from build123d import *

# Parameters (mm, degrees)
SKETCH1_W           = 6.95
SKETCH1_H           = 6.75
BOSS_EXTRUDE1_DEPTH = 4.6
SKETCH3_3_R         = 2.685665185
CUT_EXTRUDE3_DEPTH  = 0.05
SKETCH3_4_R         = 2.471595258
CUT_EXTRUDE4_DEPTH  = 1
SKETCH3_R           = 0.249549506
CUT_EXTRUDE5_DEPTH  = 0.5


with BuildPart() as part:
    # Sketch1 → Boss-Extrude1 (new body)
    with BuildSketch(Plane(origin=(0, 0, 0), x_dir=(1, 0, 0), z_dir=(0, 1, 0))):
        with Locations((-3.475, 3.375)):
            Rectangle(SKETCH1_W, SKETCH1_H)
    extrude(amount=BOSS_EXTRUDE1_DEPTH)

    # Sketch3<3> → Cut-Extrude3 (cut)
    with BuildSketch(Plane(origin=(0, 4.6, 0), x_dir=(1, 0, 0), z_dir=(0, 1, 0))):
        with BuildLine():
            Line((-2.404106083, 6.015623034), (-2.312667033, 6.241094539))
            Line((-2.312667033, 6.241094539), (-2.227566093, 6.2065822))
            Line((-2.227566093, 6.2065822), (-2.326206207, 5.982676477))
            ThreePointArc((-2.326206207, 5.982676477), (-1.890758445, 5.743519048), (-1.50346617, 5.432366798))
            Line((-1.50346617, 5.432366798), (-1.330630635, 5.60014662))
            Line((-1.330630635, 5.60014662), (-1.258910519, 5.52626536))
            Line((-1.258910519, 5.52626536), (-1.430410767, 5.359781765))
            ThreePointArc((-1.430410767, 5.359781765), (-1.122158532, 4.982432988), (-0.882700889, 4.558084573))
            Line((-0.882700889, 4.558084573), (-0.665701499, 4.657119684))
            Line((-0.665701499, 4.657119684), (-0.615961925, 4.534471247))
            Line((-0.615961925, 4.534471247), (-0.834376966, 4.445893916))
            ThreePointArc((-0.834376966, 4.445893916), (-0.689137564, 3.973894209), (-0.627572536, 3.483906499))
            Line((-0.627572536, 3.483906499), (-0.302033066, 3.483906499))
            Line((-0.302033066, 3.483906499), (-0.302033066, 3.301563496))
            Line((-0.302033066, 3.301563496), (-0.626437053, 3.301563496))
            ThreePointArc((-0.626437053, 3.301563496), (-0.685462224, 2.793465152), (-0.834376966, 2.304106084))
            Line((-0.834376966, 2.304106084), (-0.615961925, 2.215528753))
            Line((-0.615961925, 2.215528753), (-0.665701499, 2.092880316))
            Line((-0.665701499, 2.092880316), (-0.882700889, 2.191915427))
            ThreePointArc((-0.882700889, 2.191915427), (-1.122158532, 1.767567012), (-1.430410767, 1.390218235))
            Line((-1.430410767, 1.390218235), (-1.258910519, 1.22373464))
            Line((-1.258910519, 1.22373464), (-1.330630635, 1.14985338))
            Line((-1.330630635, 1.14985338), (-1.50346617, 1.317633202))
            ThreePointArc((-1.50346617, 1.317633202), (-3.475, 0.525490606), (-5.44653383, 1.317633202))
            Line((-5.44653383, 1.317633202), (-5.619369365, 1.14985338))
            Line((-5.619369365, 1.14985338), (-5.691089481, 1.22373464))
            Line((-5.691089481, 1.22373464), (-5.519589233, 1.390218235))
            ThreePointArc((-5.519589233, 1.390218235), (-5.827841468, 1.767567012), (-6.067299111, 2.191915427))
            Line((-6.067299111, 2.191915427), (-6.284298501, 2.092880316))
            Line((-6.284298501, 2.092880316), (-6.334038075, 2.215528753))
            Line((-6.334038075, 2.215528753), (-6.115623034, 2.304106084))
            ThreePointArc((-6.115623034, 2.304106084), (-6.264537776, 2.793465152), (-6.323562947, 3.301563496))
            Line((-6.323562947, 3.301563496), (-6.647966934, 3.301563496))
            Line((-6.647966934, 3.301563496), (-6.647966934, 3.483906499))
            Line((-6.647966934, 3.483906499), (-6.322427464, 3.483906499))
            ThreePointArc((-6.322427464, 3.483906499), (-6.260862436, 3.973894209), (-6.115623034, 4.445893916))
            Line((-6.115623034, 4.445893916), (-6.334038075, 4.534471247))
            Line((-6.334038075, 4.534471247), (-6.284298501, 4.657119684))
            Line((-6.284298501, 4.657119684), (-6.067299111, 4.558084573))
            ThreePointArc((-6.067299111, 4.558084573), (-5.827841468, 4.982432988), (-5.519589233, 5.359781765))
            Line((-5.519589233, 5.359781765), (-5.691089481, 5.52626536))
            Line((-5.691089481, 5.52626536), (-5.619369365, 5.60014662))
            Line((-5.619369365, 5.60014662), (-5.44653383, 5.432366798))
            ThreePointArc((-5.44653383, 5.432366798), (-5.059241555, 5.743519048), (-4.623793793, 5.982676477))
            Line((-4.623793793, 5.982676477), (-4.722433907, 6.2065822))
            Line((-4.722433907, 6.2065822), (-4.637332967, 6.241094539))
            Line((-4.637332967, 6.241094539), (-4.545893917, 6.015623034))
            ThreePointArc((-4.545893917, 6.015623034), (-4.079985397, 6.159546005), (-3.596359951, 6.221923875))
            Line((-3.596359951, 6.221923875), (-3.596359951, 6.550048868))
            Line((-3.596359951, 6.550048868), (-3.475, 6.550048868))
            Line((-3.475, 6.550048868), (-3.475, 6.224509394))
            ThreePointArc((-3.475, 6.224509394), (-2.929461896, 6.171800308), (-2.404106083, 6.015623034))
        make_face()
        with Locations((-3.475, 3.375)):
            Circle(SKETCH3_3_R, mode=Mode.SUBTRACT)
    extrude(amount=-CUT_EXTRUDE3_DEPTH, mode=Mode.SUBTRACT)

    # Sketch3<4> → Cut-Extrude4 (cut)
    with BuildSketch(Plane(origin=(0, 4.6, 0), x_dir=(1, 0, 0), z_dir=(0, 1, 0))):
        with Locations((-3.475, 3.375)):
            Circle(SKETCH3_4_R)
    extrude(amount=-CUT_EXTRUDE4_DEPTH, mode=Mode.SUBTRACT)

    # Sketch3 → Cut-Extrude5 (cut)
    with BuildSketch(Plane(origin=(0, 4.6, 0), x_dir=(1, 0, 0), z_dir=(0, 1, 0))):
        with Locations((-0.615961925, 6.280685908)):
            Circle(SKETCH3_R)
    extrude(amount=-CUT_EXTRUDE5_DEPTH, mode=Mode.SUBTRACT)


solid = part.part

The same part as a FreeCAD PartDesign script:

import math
import FreeCAD as App
import Part
import Sketcher
Q = App.Units.Quantity


def add_polygon(sketch, points):
    """Adds a closed chain of lines whose ends are joined by coincident constraints."""
    first, n = sketch.GeometryCount, len(points)
    for a, b in zip(points, points[1:] + points[:1]):
        sketch.addGeometry(Part.LineSegment(App.Vector(*a, 0), App.Vector(*b, 0)), False)
    for i in range(n):
        sketch.addConstraint(Sketcher.Constraint("Coincident", first + i, 2, first + (i + 1) % n, 1))

doc = App.newDocument("Part")
params = doc.addObject("Spreadsheet::Sheet", "Params")
for row, (alias, value) in enumerate([
    ("sketch1_width", "6.95 mm"),
    ("sketch1_height", "6.75 mm"),
    ("pad1_length", "4.6 mm"),
    ("pocket1_length", "0.05 mm"),
    ("pocket2_length", "1 mm"),
    ("pocket3_length", "0.5 mm"),
], start=1):
    params.set(f"A{row}", alias)
    params.set(f"B{row}", "=" + value)
    params.setAlias(f"B{row}", alias)

body = doc.addObject("PartDesign::Body", "Body")

sketch1 = body.newObject("Sketcher::SketchObject", "Sketch")
sketch1.AttachmentSupport = (doc.getObject("XZ_Plane"), [""])
sketch1.MapMode = "FlatFace"
add_polygon(sketch1, [(-7, -7), (-7, 0), (0, 0), (0, -7)])
sketch1.addConstraint([
    Sketcher.Constraint("Vertical", 0),
    Sketcher.Constraint("Horizontal", 1),
    Sketcher.Constraint("Vertical", 2),
    Sketcher.Constraint("Horizontal", 3),
    Sketcher.Constraint("Coincident", 1, 2, -1, 1),
    Sketcher.Constraint("DistanceX", 1, 1, 1, 2, Q("6.95 mm")),
    Sketcher.Constraint("DistanceY", 0, 1, 0, 2, Q("6.75 mm")),
])
sketch1.setExpression("Constraints[9]", "Params.sketch1_width")
sketch1.setExpression("Constraints[10]", "Params.sketch1_height")
pad1 = body.newObject("PartDesign::Pad", "Pad")
pad1.Profile = sketch1
pad1.setExpression("Length", "Params.pad1_length")
pad1.Reversed = True

sketch2 = body.newObject("Sketcher::SketchObject", "Sketch001")
sketch2.AttachmentSupport = (doc.getObject("XZ_Plane"), [""])
sketch2.MapMode = "FlatFace"
sketch2.AttachmentOffset = App.Placement(App.Vector(0, 0, -4.6), App.Rotation())
sketch2.addGeometry([
    Part.LineSegment(App.Vector(-2.312667, -6.241095, 0), App.Vector(-2.404106, -6.015623, 0)),
    Part.ArcOfCircle(Part.Circle(App.Vector(-3.475, -3.375, 0), App.Vector(0, 0, 1), 2.849509), math.radians(-90), math.radians(-67.925186)),
    Part.LineSegment(App.Vector(-3.475, -6.224509, 0), App.Vector(-3.475, -6.550049, 0)),
    Part.LineSegment(App.Vector(-3.475, -6.550049, 0), App.Vector(-3.59636, -6.550049, 0)),
    Part.LineSegment(App.Vector(-3.59636, -6.550049, 0), App.Vector(-3.59636, -6.221924, 0)),
    Part.ArcOfCircle(Part.Circle(App.Vector(-3.475, -3.375, 0), App.Vector(0, 0, 1), 2.849509), math.radians(-112.074814), math.radians(-92.440953)),
    Part.LineSegment(App.Vector(-4.545894, -6.015623, 0), App.Vector(-4.637333, -6.241095, 0)),
    Part.LineSegment(App.Vector(-4.637333, -6.241095, 0), App.Vector(-4.722434, -6.206582, 0)),
    Part.LineSegment(App.Vector(-4.722434, -6.206582, 0), App.Vector(-4.623794, -5.982676, 0)),
    Part.ArcOfCircle(Part.Circle(App.Vector(-3.475, -3.375, 0), App.Vector(0, 0, 1), 2.849509), math.radians(-133.779537), math.radians(-113.775558)),
    Part.LineSegment(App.Vector(-5.446534, -5.432367, 0), App.Vector(-5.619369, -5.600147, 0)),
    Part.LineSegment(App.Vector(-5.619369, -5.600147, 0), App.Vector(-5.691089, -5.526265, 0)),
    Part.LineSegment(App.Vector(-5.691089, -5.526265, 0), App.Vector(-5.519589, -5.359782, 0)),
    Part.ArcOfCircle(Part.Circle(App.Vector(-3.475, -3.375, 0), App.Vector(0, 0, 1), 2.849509), math.radians(-155.468789), math.radians(-135.850372)),
    Part.LineSegment(App.Vector(-6.067299, -4.558085, 0), App.Vector(-6.284299, -4.65712, 0)),
    Part.LineSegment(App.Vector(-6.284299, -4.65712, 0), App.Vector(-6.334038, -4.534471, 0)),
    Part.LineSegment(App.Vector(-6.334038, -4.534471, 0), App.Vector(-6.115623, -4.445894, 0)),
    Part.ArcOfCircle(Part.Circle(App.Vector(-3.475, -3.375, 0), App.Vector(0, 0, 1), 2.849509), math.radians(-177.809657), math.radians(-157.925186)),
    Part.LineSegment(App.Vector(-6.322427, -3.483906, 0), App.Vector(-6.647967, -3.483906, 0)),
    Part.LineSegment(App.Vector(-6.647967, -3.483906, 0), App.Vector(-6.647967, -3.301563, 0)),
    Part.LineSegment(App.Vector(-6.647967, -3.301563, 0), App.Vector(-6.323563, -3.301563, 0)),
    Part.ArcOfCircle(Part.Circle(App.Vector(-3.475, -3.375, 0), App.Vector(0, 0, 1), 2.849509), math.radians(157.925186), math.radians(178.523231)),
    Part.LineSegment(App.Vector(-6.115623, -2.304106, 0), App.Vector(-6.334038, -2.215529, 0)),
    Part.LineSegment(App.Vector(-6.334038, -2.215529, 0), App.Vector(-6.284299, -2.09288, 0)),
    Part.LineSegment(App.Vector(-6.284299, -2.09288, 0), App.Vector(-6.067299, -2.191915, 0)),
    Part.ArcOfCircle(Part.Circle(App.Vector(-3.475, -3.375, 0), App.Vector(0, 0, 1), 2.849509), math.radians(135.850372), math.radians(155.468789)),
    Part.LineSegment(App.Vector(-5.519589, -1.390218, 0), App.Vector(-5.691089, -1.223735, 0)),
    Part.LineSegment(App.Vector(-5.691089, -1.223735, 0), App.Vector(-5.619369, -1.149853, 0)),
    Part.LineSegment(App.Vector(-5.619369, -1.149853, 0), App.Vector(-5.446534, -1.317633, 0)),
    Part.ArcOfCircle(Part.Circle(App.Vector(-3.475, -3.375, 0), App.Vector(0, 0, 1), 2.849509), math.radians(46.220463), math.radians(133.779537)),
    Part.LineSegment(App.Vector(-1.503466, -1.317633, 0), App.Vector(-1.330631, -1.149853, 0)),
    Part.LineSegment(App.Vector(-1.330631, -1.149853, 0), App.Vector(-1.258911, -1.223735, 0)),
    Part.LineSegment(App.Vector(-1.258911, -1.223735, 0), App.Vector(-1.430411, -1.390218, 0)),
    Part.ArcOfCircle(Part.Circle(App.Vector(-3.475, -3.375, 0), App.Vector(0, 0, 1), 2.849509), math.radians(24.531211), math.radians(44.149628)),
    Part.LineSegment(App.Vector(-0.882701, -2.191915, 0), App.Vector(-0.665701, -2.09288, 0)),
    Part.LineSegment(App.Vector(-0.665701, -2.09288, 0), App.Vector(-0.615962, -2.215529, 0)),
    Part.LineSegment(App.Vector(-0.615962, -2.215529, 0), App.Vector(-0.834377, -2.304106, 0)),
    Part.ArcOfCircle(Part.Circle(App.Vector(-3.475, -3.375, 0), App.Vector(0, 0, 1), 2.849509), math.radians(1.476769), math.radians(22.074814)),
    Part.LineSegment(App.Vector(-0.626437, -3.301563, 0), App.Vector(-0.302033, -3.301563, 0)),
    Part.LineSegment(App.Vector(-0.302033, -3.301563, 0), App.Vector(-0.302033, -3.483906, 0)),
    Part.LineSegment(App.Vector(-0.302033, -3.483906, 0), App.Vector(-0.627573, -3.483906, 0)),
    Part.ArcOfCircle(Part.Circle(App.Vector(-3.475, -3.375, 0), App.Vector(0, 0, 1), 2.849509), math.radians(-22.074814), math.radians(-2.190343)),
    Part.LineSegment(App.Vector(-0.834377, -4.445894, 0), App.Vector(-0.615962, -4.534471, 0)),
    Part.LineSegment(App.Vector(-0.615962, -4.534471, 0), App.Vector(-0.665701, -4.65712, 0)),
    Part.LineSegment(App.Vector(-0.665701, -4.65712, 0), App.Vector(-0.882701, -4.558085, 0)),
    Part.ArcOfCircle(Part.Circle(App.Vector(-3.475, -3.375, 0), App.Vector(0, 0, 1), 2.849509), math.radians(-44.149628), math.radians(-24.531211)),
    Part.LineSegment(App.Vector(-1.430411, -5.359782, 0), App.Vector(-1.258911, -5.526265, 0)),
    Part.LineSegment(App.Vector(-1.258911, -5.526265, 0), App.Vector(-1.330631, -5.600147, 0)),
    Part.LineSegment(App.Vector(-1.330631, -5.600147, 0), App.Vector(-1.503466, -5.432367, 0)),
    Part.ArcOfCircle(Part.Circle(App.Vector(-3.475, -3.375, 0), App.Vector(0, 0, 1), 2.849509), math.radians(-66.224442), math.radians(-46.220463)),
    Part.LineSegment(App.Vector(-2.326206, -5.982676, 0), App.Vector(-2.227566, -6.206582, 0)),
    Part.LineSegment(App.Vector(-2.227566, -6.206582, 0), App.Vector(-2.312667, -6.241095, 0)),
    Part.Circle(App.Vector(-3.475, -3.375, 0), App.Vector(0, 0, 1), 2.685665),
], False)
sketch2.addConstraint([
    Sketcher.Constraint("Coincident", 0, 2, 1, 2),
    Sketcher.Constraint("Coincident", 1, 1, 2, 1),
    Sketcher.Constraint("Coincident", 2, 2, 3, 1),
    Sketcher.Constraint("Coincident", 3, 2, 4, 1),
    Sketcher.Constraint("Coincident", 4, 2, 5, 2),
    Sketcher.Constraint("Coincident", 5, 1, 6, 1),
    Sketcher.Constraint("Coincident", 6, 2, 7, 1),
    Sketcher.Constraint("Coincident", 7, 2, 8, 1),
    Sketcher.Constraint("Coincident", 8, 2, 9, 2),
    Sketcher.Constraint("Coincident", 9, 1, 10, 1),
    Sketcher.Constraint("Coincident", 10, 2, 11, 1),
    Sketcher.Constraint("Coincident", 11, 2, 12, 1),
    Sketcher.Constraint("Coincident", 12, 2, 13, 2),
    Sketcher.Constraint("Coincident", 13, 1, 14, 1),
    Sketcher.Constraint("Coincident", 14, 2, 15, 1),
    Sketcher.Constraint("Coincident", 15, 2, 16, 1),
    Sketcher.Constraint("Coincident", 16, 2, 17, 2),
    Sketcher.Constraint("Coincident", 17, 1, 18, 1),
    Sketcher.Constraint("Coincident", 18, 2, 19, 1),
    Sketcher.Constraint("Coincident", 19, 2, 20, 1),
    Sketcher.Constraint("Coincident", 20, 2, 21, 2),
    Sketcher.Constraint("Coincident", 21, 1, 22, 1),
    Sketcher.Constraint("Coincident", 22, 2, 23, 1),
    Sketcher.Constraint("Coincident", 23, 2, 24, 1),
    Sketcher.Constraint("Coincident", 24, 2, 25, 2),
    Sketcher.Constraint("Coincident", 25, 1, 26, 1),
    Sketcher.Constraint("Coincident", 26, 2, 27, 1),
    Sketcher.Constraint("Coincident", 27, 2, 28, 1),
    Sketcher.Constraint("Coincident", 28, 2, 29, 2),
    Sketcher.Constraint("Coincident", 29, 1, 30, 1),
    Sketcher.Constraint("Coincident", 30, 2, 31, 1),
    Sketcher.Constraint("Coincident", 31, 2, 32, 1),
    Sketcher.Constraint("Coincident", 32, 2, 33, 2),
    Sketcher.Constraint("Coincident", 33, 1, 34, 1),
    Sketcher.Constraint("Coincident", 34, 2, 35, 1),
    Sketcher.Constraint("Coincident", 35, 2, 36, 1),
    Sketcher.Constraint("Coincident", 36, 2, 37, 2),
    Sketcher.Constraint("Coincident", 37, 1, 38, 1),
    Sketcher.Constraint("Coincident", 38, 2, 39, 1),
    Sketcher.Constraint("Coincident", 39, 2, 40, 1),
    Sketcher.Constraint("Coincident", 40, 2, 41, 2),
    Sketcher.Constraint("Coincident", 41, 1, 42, 1),
    Sketcher.Constraint("Coincident", 42, 2, 43, 1),
    Sketcher.Constraint("Coincident", 43, 2, 44, 1),
    Sketcher.Constraint("Coincident", 44, 2, 45, 2),
    Sketcher.Constraint("Coincident", 45, 1, 46, 1),
    Sketcher.Constraint("Coincident", 46, 2, 47, 1),
    Sketcher.Constraint("Coincident", 47, 2, 48, 1),
    Sketcher.Constraint("Coincident", 48, 2, 49, 2),
    Sketcher.Constraint("Coincident", 49, 1, 50, 1),
    Sketcher.Constraint("Coincident", 50, 2, 51, 1),
    Sketcher.Constraint("Coincident", 51, 2, 0, 1),
    Sketcher.Constraint("Vertical", 2),
    Sketcher.Constraint("Horizontal", 3),
    Sketcher.Constraint("Vertical", 4),
    Sketcher.Constraint("Horizontal", 18),
    Sketcher.Constraint("Vertical", 19),
    Sketcher.Constraint("Horizontal", 20),
    Sketcher.Constraint("Horizontal", 38),
    Sketcher.Constraint("Vertical", 39),
    Sketcher.Constraint("Horizontal", 40),
    Sketcher.Constraint("Coincident", 5, 3, 1, 3),
    Sketcher.Constraint("Coincident", 9, 3, 1, 3),
    Sketcher.Constraint("Coincident", 13, 3, 1, 3),
    Sketcher.Constraint("Coincident", 17, 3, 1, 3),
    Sketcher.Constraint("Coincident", 21, 3, 1, 3),
    Sketcher.Constraint("Coincident", 25, 3, 1, 3),
    Sketcher.Constraint("Coincident", 29, 3, 1, 3),
    Sketcher.Constraint("Coincident", 33, 3, 1, 3),
    Sketcher.Constraint("Coincident", 37, 3, 1, 3),
    Sketcher.Constraint("Coincident", 41, 3, 1, 3),
    Sketcher.Constraint("Coincident", 45, 3, 1, 3),
    Sketcher.Constraint("Coincident", 49, 3, 1, 3),
    Sketcher.Constraint("Coincident", 52, 3, 1, 3),
    Sketcher.Constraint("Diameter", 52, Q("5.37133 mm")),
    Sketcher.Constraint("Radius", 1, Q("2.849509 mm")),
    Sketcher.Constraint("Radius", 5, Q("2.849509 mm")),
    Sketcher.Constraint("Radius", 9, Q("2.849509 mm")),
    Sketcher.Constraint("Radius", 13, Q("2.849509 mm")),
    Sketcher.Constraint("Radius", 17, Q("2.849509 mm")),
    Sketcher.Constraint("Radius", 21, Q("2.849509 mm")),
    Sketcher.Constraint("Radius", 25, Q("2.849509 mm")),
    Sketcher.Constraint("Radius", 29, Q("2.849509 mm")),
    Sketcher.Constraint("Radius", 33, Q("2.849509 mm")),
    Sketcher.Constraint("Radius", 37, Q("2.849509 mm")),
    Sketcher.Constraint("Radius", 41, Q("2.849509 mm")),
    Sketcher.Constraint("Radius", 45, Q("2.849509 mm")),
    Sketcher.Constraint("Radius", 49, Q("2.849509 mm")),
    Sketcher.Constraint("DistanceX", 1, 3, -1, 1, Q("3.475 mm")),
    Sketcher.Constraint("DistanceY", 1, 3, -1, 1, Q("3.375 mm")),
    Sketcher.Constraint("DistanceX", 1, 1, -1, 1, Q("3.475 mm")),
    Sketcher.Constraint("DistanceX", 3, 2, 3, 1, Q("0.12136 mm")),
    Sketcher.Constraint("DistanceX", 18, 2, 18, 1, Q("0.325539 mm")),
    Sketcher.Constraint("DistanceX", 40, 2, 40, 1, Q("0.325539 mm")),
    Sketcher.Constraint("DistanceY", 2, 2, 2, 1, Q("0.325539 mm")),
    Sketcher.Constraint("DistanceX", 13, 1, -1, 1, Q("6.067299 mm")),
    Sketcher.Constraint("DistanceX", 14, 2, -1, 1, Q("6.284299 mm")),
    Sketcher.Constraint("DistanceX", 23, 2, -1, 1, Q("6.284299 mm")),
    Sketcher.Constraint("DistanceX", 24, 2, -1, 1, Q("6.067299 mm")),
    Sketcher.Constraint("DistanceX", 33, 1, -1, 1, Q("0.882701 mm")),
    Sketcher.Constraint("DistanceX", 34, 2, -1, 1, Q("0.665701 mm")),
    Sketcher.Constraint("DistanceX", 43, 2, -1, 1, Q("0.665701 mm")),
    Sketcher.Constraint("DistanceX", 44, 2, -1, 1, Q("0.882701 mm")),
    Sketcher.Constraint("Distance", 8, Q("0.24467 mm")),
    Sketcher.Constraint("Distance", 14, Q("0.23853 mm")),
    Sketcher.Constraint("Distance", 15, Q("0.132351 mm")),
    Sketcher.Constraint("Distance", 23, Q("0.132351 mm")),
    Sketcher.Constraint("Distance", 24, Q("0.23853 mm")),
    Sketcher.Constraint("Distance", 34, Q("0.23853 mm")),
    Sketcher.Constraint("Distance", 35, Q("0.132351 mm")),
    Sketcher.Constraint("Distance", 43, Q("0.132351 mm")),
    Sketcher.Constraint("Distance", 44, Q("0.23853 mm")),
    Sketcher.Constraint("Distance", 50, Q("0.24467 mm")),
    Sketcher.Constraint("DistanceX", 20, 1, 20, 2, Q("0.324404 mm")),
    Sketcher.Constraint("DistanceX", 38, 1, 38, 2, Q("0.324404 mm")),
    Sketcher.Constraint("DistanceY", 19, 1, 19, 2, Q("0.182343 mm")),
    Sketcher.Constraint("DistanceY", 39, 2, 39, 1, Q("0.182343 mm")),
    Sketcher.Constraint("DistanceX", 10, 2, -1, 1, Q("5.619369 mm")),
    Sketcher.Constraint("DistanceX", 11, 2, -1, 1, Q("5.691089 mm")),
    Sketcher.Constraint("DistanceX", 12, 2, -1, 1, Q("5.519589 mm")),
    Sketcher.Constraint("DistanceX", 15, 2, -1, 1, Q("6.334038 mm")),
    Sketcher.Constraint("DistanceX", 22, 2, -1, 1, Q("6.334038 mm")),
    Sketcher.Constraint("DistanceX", 25, 1, -1, 1, Q("5.519589 mm")),
    Sketcher.Constraint("DistanceX", 26, 2, -1, 1, Q("5.691089 mm")),
    Sketcher.Constraint("DistanceX", 27, 2, -1, 1, Q("5.619369 mm")),
    Sketcher.Constraint("DistanceX", 30, 2, -1, 1, Q("1.330631 mm")),
    Sketcher.Constraint("DistanceX", 31, 2, -1, 1, Q("1.258911 mm")),
    Sketcher.Constraint("DistanceX", 32, 2, -1, 1, Q("1.430411 mm")),
    Sketcher.Constraint("DistanceX", 35, 2, -1, 1, Q("0.615962 mm")),
    Sketcher.Constraint("DistanceX", 42, 2, -1, 1, Q("0.615962 mm")),
    Sketcher.Constraint("DistanceX", 45, 1, -1, 1, Q("1.430411 mm")),
    Sketcher.Constraint("DistanceX", 46, 2, -1, 1, Q("1.258911 mm")),
    Sketcher.Constraint("DistanceX", 47, 2, -1, 1, Q("1.330631 mm")),
    Sketcher.Constraint("Distance", 0, Q("0.243307 mm")),
    Sketcher.Constraint("Distance", 6, Q("0.243307 mm")),
    Sketcher.Constraint("Distance", 7, Q("0.091833 mm")),
    Sketcher.Constraint("Distance", 10, Q("0.240878 mm")),
    Sketcher.Constraint("Distance", 11, Q("0.102967 mm")),
    Sketcher.Constraint("Distance", 12, Q("0.239017 mm")),
    Sketcher.Constraint("Distance", 26, Q("0.239017 mm")),
    Sketcher.Constraint("Distance", 27, Q("0.102967 mm")),
    Sketcher.Constraint("Distance", 28, Q("0.240878 mm")),
    Sketcher.Constraint("Distance", 30, Q("0.240878 mm")),
    Sketcher.Constraint("Distance", 31, Q("0.102967 mm")),
    Sketcher.Constraint("Distance", 32, Q("0.239017 mm")),
    Sketcher.Constraint("Distance", 46, Q("0.239017 mm")),
    Sketcher.Constraint("Distance", 47, Q("0.102967 mm")),
    Sketcher.Constraint("Distance", 48, Q("0.240878 mm")),
    Sketcher.Constraint("Distance", 51, Q("0.091833 mm")),
    Sketcher.Constraint("DistanceX", 0, 2, -1, 1, Q("2.404106 mm")),
    Sketcher.Constraint("DistanceX", 5, 1, -1, 1, Q("4.545894 mm")),
    Sketcher.Constraint("DistanceX", 6, 2, -1, 1, Q("4.637333 mm")),
    Sketcher.Constraint("DistanceX", 8, 2, -1, 1, Q("4.623794 mm")),
    Sketcher.Constraint("DistanceX", 16, 2, -1, 1, Q("6.115623 mm")),
    Sketcher.Constraint("DistanceX", 21, 1, -1, 1, Q("6.115623 mm")),
    Sketcher.Constraint("DistanceX", 36, 2, -1, 1, Q("0.834377 mm")),
    Sketcher.Constraint("DistanceX", 41, 1, -1, 1, Q("0.834377 mm")),
    Sketcher.Constraint("DistanceX", 49, 1, -1, 1, Q("2.326206 mm")),
    Sketcher.Constraint("DistanceX", 50, 2, -1, 1, Q("2.227566 mm")),
])
pocket1 = body.newObject("PartDesign::Pocket", "Pocket")
pocket1.Profile = sketch2
pocket1.setExpression("Length", "Params.pocket1_length")
pocket1.Reversed = True

sketch3 = body.newObject("Sketcher::SketchObject", "Sketch002")
sketch3.AttachmentSupport = (doc.getObject("XZ_Plane"), [""])
sketch3.MapMode = "FlatFace"
sketch3.AttachmentOffset = App.Placement(App.Vector(0, 0, -4.6), App.Rotation())
sketch3.addGeometry(Part.Circle(App.Vector(-3.5, -3.4, 0), App.Vector(0, 0, 1), 2.5), False)
sketch3.addConstraint([
    Sketcher.Constraint("Diameter", 0, Q("4.943191 mm")),
    Sketcher.Constraint("DistanceX", 0, 3, -1, 1, Q("3.475 mm")),
    Sketcher.Constraint("DistanceY", 0, 3, -1, 1, Q("3.375 mm")),
])
pocket2 = body.newObject("PartDesign::Pocket", "Pocket001")
pocket2.Profile = sketch3
pocket2.setExpression("Length", "Params.pocket2_length")
pocket2.Reversed = True

sketch4 = body.newObject("Sketcher::SketchObject", "Sketch003")
sketch4.AttachmentSupport = (doc.getObject("XZ_Plane"), [""])
sketch4.MapMode = "FlatFace"
sketch4.AttachmentOffset = App.Placement(App.Vector(0, 0, -4.6), App.Rotation())
sketch4.addGeometry(Part.Circle(App.Vector(-0.62, -6.28, 0), App.Vector(0, 0, 1), 0.25), False)
sketch4.addConstraint([
    Sketcher.Constraint("Diameter", 0, Q("0.499099 mm")),
    Sketcher.Constraint("DistanceX", 0, 3, -1, 1, Q("0.615962 mm")),
    Sketcher.Constraint("DistanceY", 0, 3, -1, 1, Q("6.280686 mm")),
])
pocket3 = body.newObject("PartDesign::Pocket", "Pocket002")
pocket3.Profile = sketch4
pocket3.setExpression("Length", "Params.pocket3_length")
pocket3.Reversed = True

doc.recompute()
